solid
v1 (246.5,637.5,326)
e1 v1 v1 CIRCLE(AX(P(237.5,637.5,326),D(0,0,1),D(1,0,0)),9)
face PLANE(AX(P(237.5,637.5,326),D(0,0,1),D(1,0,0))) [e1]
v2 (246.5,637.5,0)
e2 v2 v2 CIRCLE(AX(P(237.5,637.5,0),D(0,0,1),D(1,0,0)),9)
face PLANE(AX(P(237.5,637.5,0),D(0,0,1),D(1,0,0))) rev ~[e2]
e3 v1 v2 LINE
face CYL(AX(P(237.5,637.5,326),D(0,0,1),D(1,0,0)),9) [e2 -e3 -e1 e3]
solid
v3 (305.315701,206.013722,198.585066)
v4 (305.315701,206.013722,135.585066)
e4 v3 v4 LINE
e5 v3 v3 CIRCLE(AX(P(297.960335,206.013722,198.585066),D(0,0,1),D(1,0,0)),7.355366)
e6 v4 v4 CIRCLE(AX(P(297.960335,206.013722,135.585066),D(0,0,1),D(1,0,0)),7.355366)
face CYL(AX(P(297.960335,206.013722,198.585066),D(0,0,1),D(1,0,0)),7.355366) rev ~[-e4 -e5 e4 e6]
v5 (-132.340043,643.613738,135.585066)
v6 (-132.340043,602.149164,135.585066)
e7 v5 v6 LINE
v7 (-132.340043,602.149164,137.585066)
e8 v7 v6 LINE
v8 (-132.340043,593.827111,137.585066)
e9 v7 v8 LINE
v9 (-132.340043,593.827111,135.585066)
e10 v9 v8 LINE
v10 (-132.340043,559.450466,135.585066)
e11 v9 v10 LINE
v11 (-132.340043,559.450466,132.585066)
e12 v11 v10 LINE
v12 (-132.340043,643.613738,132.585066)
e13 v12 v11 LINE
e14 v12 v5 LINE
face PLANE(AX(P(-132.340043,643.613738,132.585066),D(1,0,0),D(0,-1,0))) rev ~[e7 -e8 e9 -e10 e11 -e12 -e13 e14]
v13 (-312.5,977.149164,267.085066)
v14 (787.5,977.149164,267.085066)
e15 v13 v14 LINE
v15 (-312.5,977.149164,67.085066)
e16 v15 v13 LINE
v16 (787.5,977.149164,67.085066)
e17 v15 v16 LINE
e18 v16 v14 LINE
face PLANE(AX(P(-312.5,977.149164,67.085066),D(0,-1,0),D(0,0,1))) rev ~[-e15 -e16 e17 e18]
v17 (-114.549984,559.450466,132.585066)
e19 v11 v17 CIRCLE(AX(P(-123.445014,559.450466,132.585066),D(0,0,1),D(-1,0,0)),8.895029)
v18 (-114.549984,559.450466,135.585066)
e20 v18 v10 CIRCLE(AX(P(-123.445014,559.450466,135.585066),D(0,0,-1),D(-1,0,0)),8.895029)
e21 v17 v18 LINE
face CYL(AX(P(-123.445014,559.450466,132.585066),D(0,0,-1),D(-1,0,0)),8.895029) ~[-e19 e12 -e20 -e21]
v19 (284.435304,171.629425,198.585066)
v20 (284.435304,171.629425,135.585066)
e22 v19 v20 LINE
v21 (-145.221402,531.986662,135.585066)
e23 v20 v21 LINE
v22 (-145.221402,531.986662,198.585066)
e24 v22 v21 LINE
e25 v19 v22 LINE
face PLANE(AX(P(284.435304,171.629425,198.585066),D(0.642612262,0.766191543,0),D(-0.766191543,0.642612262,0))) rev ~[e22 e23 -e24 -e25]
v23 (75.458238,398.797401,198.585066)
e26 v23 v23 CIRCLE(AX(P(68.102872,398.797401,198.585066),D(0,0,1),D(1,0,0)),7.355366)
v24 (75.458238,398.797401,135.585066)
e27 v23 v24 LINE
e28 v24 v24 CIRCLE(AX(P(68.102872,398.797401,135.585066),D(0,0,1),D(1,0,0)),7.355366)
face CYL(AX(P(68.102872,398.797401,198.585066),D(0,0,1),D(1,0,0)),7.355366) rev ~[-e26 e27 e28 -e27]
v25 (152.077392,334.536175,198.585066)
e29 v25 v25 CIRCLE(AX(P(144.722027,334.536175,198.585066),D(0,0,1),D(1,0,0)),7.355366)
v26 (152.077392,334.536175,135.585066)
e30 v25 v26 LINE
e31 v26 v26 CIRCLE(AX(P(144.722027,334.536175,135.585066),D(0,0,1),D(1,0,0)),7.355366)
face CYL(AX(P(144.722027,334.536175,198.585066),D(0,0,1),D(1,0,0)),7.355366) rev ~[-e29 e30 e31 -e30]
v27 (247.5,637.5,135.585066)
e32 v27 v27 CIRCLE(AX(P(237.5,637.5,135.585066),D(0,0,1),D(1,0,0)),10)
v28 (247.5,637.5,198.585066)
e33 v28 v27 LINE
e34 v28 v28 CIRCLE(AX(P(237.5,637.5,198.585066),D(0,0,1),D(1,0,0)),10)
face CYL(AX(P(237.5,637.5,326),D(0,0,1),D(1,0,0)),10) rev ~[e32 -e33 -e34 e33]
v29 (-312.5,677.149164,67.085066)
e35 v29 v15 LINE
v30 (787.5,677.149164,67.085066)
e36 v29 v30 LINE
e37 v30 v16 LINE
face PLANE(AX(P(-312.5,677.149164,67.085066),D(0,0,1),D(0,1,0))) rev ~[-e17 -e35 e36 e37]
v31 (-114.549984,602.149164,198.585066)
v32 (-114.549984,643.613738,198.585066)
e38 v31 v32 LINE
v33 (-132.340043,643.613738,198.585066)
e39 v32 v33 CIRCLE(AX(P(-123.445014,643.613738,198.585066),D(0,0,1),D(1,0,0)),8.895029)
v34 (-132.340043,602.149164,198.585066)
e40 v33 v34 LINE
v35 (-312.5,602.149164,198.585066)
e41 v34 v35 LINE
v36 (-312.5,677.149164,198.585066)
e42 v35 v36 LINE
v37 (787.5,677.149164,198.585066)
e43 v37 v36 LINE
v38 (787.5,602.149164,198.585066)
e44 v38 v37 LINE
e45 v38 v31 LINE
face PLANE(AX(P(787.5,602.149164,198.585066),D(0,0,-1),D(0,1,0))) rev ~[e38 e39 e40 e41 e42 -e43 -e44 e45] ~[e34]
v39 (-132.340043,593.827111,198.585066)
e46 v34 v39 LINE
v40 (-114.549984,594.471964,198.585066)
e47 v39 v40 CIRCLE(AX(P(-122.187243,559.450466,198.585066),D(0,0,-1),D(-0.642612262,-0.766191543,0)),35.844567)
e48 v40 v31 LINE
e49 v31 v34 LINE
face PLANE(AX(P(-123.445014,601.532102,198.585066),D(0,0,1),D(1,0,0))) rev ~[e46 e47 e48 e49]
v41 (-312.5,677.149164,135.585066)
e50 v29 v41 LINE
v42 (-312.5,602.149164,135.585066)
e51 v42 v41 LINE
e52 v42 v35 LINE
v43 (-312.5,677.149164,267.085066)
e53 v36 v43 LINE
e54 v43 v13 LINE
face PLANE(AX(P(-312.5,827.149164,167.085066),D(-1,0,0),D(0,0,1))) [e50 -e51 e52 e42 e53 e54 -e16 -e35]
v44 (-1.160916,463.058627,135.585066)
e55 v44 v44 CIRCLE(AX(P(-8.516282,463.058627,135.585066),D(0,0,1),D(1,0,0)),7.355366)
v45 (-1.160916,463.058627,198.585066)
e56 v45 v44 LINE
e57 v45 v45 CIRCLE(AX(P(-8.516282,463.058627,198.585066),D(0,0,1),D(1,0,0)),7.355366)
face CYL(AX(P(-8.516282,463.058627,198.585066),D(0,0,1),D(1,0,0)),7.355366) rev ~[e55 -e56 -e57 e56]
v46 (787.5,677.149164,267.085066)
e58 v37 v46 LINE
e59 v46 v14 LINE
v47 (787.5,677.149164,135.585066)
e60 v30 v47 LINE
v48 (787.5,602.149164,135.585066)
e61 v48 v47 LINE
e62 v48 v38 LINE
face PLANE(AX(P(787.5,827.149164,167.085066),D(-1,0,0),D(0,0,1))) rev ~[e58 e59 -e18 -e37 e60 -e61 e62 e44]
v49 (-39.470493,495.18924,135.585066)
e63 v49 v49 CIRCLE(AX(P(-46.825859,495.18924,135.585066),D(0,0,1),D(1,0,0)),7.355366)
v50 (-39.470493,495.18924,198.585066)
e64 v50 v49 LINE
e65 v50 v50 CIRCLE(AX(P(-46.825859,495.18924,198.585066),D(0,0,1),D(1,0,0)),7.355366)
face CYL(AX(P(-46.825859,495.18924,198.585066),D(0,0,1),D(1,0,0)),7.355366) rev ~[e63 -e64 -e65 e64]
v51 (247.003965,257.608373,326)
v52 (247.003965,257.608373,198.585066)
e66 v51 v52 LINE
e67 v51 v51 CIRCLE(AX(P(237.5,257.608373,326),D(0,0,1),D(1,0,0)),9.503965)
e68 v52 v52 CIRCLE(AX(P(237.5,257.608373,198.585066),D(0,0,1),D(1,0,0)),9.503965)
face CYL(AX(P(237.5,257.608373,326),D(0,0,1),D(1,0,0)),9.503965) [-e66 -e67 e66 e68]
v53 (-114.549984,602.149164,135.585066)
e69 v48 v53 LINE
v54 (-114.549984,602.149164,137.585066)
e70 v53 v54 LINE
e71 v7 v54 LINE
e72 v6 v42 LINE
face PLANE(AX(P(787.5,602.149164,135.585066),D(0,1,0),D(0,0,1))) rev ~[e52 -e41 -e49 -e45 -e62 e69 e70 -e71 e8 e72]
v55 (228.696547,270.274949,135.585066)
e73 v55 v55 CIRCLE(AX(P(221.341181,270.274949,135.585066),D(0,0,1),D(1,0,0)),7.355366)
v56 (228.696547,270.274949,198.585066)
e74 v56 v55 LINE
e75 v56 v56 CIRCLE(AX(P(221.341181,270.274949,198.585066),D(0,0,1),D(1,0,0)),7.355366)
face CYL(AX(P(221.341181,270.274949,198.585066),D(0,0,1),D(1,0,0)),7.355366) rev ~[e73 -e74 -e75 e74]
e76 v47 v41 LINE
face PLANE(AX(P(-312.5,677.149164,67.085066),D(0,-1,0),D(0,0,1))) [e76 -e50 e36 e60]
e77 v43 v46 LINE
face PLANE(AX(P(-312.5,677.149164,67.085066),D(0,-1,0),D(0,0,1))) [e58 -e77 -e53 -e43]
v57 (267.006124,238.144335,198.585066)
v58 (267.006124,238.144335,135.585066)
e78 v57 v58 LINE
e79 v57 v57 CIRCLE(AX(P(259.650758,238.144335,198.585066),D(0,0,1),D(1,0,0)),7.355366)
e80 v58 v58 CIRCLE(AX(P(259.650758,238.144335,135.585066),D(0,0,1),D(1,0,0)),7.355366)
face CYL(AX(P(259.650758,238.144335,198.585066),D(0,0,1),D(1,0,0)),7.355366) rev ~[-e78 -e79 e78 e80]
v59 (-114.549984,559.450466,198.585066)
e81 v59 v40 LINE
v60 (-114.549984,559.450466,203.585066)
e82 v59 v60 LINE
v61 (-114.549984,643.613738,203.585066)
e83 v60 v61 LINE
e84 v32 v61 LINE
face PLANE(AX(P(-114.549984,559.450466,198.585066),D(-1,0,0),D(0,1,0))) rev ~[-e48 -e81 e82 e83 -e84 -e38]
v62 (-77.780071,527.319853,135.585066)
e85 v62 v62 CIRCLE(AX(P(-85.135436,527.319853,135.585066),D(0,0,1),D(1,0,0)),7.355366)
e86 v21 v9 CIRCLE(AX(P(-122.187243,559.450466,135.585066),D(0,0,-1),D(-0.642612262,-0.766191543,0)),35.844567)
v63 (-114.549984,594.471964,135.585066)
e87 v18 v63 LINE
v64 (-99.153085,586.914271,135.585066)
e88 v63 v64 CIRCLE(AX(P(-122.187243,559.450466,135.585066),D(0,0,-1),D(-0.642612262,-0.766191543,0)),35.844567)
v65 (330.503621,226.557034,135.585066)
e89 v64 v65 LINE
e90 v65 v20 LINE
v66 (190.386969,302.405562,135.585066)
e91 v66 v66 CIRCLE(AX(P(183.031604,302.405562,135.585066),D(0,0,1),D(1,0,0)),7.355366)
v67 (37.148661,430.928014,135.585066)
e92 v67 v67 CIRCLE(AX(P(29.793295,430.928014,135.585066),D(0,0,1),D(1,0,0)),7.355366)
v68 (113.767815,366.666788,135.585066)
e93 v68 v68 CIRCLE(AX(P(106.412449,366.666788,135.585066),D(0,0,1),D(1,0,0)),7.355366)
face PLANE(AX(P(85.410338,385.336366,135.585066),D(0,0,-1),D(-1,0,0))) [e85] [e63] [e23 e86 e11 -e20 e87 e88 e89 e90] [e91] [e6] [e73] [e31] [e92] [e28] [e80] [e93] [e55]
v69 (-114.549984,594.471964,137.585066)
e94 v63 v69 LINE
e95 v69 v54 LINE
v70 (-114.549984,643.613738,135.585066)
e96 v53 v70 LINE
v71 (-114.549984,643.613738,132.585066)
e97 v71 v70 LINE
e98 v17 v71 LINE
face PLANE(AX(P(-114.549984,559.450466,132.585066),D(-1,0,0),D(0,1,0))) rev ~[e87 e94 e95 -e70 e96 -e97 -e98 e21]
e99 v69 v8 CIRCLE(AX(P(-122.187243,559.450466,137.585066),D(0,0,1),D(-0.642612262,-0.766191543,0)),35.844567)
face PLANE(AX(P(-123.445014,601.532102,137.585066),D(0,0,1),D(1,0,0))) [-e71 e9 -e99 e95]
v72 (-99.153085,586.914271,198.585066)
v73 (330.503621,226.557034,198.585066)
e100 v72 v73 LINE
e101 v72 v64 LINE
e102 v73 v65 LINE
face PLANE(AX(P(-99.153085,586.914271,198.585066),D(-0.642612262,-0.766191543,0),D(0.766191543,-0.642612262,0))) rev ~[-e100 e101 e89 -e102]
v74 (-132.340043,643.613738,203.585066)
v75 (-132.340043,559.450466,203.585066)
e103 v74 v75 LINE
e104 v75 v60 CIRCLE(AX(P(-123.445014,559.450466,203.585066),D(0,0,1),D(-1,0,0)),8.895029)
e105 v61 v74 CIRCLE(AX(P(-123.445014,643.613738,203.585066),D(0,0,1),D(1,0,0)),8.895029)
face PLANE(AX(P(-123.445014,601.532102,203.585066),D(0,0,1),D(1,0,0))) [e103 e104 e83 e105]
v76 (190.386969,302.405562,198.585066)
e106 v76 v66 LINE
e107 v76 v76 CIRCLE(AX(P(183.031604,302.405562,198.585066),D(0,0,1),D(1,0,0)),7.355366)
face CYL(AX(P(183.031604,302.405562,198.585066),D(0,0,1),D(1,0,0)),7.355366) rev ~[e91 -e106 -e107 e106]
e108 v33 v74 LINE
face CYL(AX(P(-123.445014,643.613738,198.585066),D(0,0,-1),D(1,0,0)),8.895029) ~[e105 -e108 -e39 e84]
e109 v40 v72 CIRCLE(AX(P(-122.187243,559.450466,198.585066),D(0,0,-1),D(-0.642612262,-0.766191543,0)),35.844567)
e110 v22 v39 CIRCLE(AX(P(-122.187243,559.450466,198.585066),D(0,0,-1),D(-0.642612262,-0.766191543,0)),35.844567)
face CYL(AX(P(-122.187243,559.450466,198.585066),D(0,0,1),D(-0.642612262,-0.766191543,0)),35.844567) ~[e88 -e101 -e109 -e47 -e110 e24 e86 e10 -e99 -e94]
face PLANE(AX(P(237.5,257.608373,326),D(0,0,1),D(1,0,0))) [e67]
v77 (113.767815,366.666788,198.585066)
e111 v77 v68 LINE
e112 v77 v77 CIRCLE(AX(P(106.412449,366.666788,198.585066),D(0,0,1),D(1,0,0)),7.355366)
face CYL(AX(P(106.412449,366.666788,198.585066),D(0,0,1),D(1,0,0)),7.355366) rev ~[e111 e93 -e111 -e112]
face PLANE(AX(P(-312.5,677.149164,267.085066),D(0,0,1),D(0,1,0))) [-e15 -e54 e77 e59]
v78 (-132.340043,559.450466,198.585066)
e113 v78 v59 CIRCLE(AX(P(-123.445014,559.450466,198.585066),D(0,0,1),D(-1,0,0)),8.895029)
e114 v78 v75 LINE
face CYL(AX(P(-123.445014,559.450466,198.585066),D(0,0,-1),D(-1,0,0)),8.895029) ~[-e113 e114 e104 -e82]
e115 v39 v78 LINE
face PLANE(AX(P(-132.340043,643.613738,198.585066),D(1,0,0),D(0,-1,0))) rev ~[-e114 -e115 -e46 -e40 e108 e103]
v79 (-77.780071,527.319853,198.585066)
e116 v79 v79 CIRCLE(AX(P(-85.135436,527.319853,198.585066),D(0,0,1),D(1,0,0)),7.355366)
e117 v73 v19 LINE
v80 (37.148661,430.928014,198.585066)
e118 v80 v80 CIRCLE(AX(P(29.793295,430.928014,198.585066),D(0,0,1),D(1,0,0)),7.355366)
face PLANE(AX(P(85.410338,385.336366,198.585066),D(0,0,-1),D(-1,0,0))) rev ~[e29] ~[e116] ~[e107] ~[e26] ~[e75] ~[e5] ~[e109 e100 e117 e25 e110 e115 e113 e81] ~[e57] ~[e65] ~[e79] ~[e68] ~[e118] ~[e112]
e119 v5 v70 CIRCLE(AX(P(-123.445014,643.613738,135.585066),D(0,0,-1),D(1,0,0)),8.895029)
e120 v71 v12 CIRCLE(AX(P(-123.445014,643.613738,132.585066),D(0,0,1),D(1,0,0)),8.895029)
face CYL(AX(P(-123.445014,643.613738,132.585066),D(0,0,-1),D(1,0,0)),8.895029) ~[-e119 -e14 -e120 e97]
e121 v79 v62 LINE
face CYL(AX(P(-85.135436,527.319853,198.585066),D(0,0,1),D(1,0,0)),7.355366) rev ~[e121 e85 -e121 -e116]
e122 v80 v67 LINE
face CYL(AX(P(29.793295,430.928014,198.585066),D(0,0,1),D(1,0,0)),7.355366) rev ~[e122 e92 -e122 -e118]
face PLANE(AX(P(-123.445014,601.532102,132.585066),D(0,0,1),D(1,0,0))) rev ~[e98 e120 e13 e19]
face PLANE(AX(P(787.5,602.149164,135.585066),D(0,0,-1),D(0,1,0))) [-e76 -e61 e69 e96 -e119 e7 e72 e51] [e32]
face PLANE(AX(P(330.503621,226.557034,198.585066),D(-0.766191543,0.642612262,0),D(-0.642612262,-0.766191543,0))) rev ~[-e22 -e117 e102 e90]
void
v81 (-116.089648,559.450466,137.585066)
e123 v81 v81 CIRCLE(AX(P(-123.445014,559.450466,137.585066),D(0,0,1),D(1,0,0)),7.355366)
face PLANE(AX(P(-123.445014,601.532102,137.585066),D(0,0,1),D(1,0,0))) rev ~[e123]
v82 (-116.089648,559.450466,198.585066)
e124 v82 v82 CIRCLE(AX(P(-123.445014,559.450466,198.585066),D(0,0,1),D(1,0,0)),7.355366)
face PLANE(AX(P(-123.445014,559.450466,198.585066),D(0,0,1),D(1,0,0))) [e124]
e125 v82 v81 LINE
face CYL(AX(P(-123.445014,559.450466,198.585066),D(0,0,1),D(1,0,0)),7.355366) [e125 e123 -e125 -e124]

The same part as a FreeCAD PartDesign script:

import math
import FreeCAD as App
import Part
import Sketcher
from FreeCAD import Vector
Q = App.Units.Quantity

doc = App.newDocument("Part")
body = doc.addObject("PartDesign::Body", "Body")

sketch1 = body.newObject("Sketcher::SketchObject", "Sketch")
sketch1.AttachmentSupport = (doc.getObject("YZ_Plane"), [""])
sketch1.MapMode = "FlatFace"
sketch1.AttachmentOffset = App.Placement(Vector(0, 0, 237.5), App.Rotation())
sketch1.addGeometry([
    Part.LineSegment(Vector(677, 136, 0), Vector(602, 136, 0)),
    Part.LineSegment(Vector(602, 136, 0), Vector(602, 199, 0)),
    Part.LineSegment(Vector(602, 199, 0), Vector(677, 199, 0)),
    Part.LineSegment(Vector(677, 199, 0), Vector(677, 136, 0)),
], False)
sketch1.addConstraint([
    Sketcher.Constraint("Coincident", 0, 2, 1, 1),
    Sketcher.Constraint("Coincident", 1, 2, 2, 1),
    Sketcher.Constraint("Coincident", 2, 2, 3, 1),
    Sketcher.Constraint("Coincident", 3, 2, 0, 1),
    Sketcher.Constraint("Horizontal", 0),
    Sketcher.Constraint("Vertical", 1),
    Sketcher.Constraint("Horizontal", 2),
    Sketcher.Constraint("Vertical", 3),
    Sketcher.Constraint("DistanceX", 0, 2, 0, 1, Q("75 mm")),
    Sketcher.Constraint("DistanceY", 1, 1, 1, 2, Q("63 mm")),
    Sketcher.Constraint("DistanceX", -1, 1, 0, 2, Q("602.149164 mm")),
    Sketcher.Constraint("DistanceY", -1, 1, 0, 2, Q("135.585066 mm")),
])
pad1 = body.newObject("PartDesign::Pad", "Pad")
pad1.Profile = sketch1
pad1.Type = "TwoLengths"
pad1.Length = 550
pad1.Length2 = 550
pad1.Reversed = True

sketch2 = body.newObject("Sketcher::SketchObject", "Sketch001")
sketch2.AttachmentSupport = (doc.getObject("XY_Plane"), [""])
sketch2.MapMode = "FlatFace"
sketch2.AttachmentOffset = App.Placement(Vector(0, 0, 326), App.Rotation())
sketch2.addGeometry(Part.Circle(Vector(238, 638, 0), Vector(0, 0, 1), 10), False)
sketch2.addConstraint([
    Sketcher.Constraint("Diameter", 0, Q("20 mm")),
    Sketcher.Constraint("DistanceX", -1, 1, 0, 3, Q("237.5 mm")),
    Sketcher.Constraint("DistanceY", -1, 1, 0, 3, Q("637.5 mm")),
])
pocket1 = body.newObject("PartDesign::Pocket", "Pocket")
pocket1.Profile = sketch2
pocket1.Type = "ThroughAll"
body2 = doc.addObject("PartDesign::Body", "Body001")

sketch3 = body2.newObject("Sketcher::SketchObject", "Sketch002")
sketch3.AttachmentSupport = (doc.getObject("XY_Plane001"), [""])
sketch3.MapMode = "FlatFace"
sketch3.AttachmentOffset = App.Placement(Vector(0, 0, 198.585066), App.Rotation())
sketch3.addGeometry([
    Part.LineSegment(Vector(331, 227, 0), Vector(-99, 587, 0)),
    Part.ArcOfCircle(Part.Circle(Vector(-122, 559, 0), Vector(0, 0, 1), 36), math.radians(50), math.radians(230)),
    Part.LineSegment(Vector(-145, 532, 0), Vector(284, 172, 0)),
    Part.LineSegment(Vector(284, 172, 0), Vector(331, 227, 0)),
], False)
sketch3.addConstraint([
    Sketcher.Constraint("Tangent", 0, 2, 1, 1),
    Sketcher.Constraint("Tangent", 1, 2, 2, 1),
    Sketcher.Constraint("Coincident", 2, 2, 3, 1),
    Sketcher.Constraint("Coincident", 3, 2, 0, 1),
    Sketcher.Constraint("Parallel", 0, 2),
    Sketcher.Constraint("Perpendicular", 2, 3),
    Sketcher.Constraint("Radius", 1, Q("35.844567 mm")),
    Sketcher.Constraint("DistanceX", 1, 2, -1, 1, Q("145.221402 mm")),
    Sketcher.Constraint("DistanceY", -1, 1, 0, 2, Q("586.914271 mm")),
    Sketcher.Constraint("DistanceX", -1, 1, 3, 2, Q("330.503621 mm")),
    Sketcher.Constraint("DistanceX", 1, 3, 0, 2, Q("23.034158 mm")),
])
pad2 = body2.newObject("PartDesign::Pad", "Pad001")
pad2.Profile = sketch3
pad2.Length = 63
pad2.Reversed = True
body.AllowCompound = True
doc.recompute()

boolean = body.newObject("PartDesign::Boolean", "Boolean")
boolean.Type = "Fuse"
boolean.addObjects([body2])

sketch4 = body.newObject("Sketcher::SketchObject", "Sketch003")
sketch4.AttachmentSupport = (doc.getObject("XY_Plane"), [""])
sketch4.MapMode = "FlatFace"
sketch4.AttachmentOffset = App.Placement(Vector(0, 0, 198.585066), App.Rotation())
sketch4.addGeometry([
    Part.LineSegment(Vector(-115, 559, 0), Vector(-115, 644, 0)),
    Part.ArcOfCircle(Part.Circle(Vector(-123, 644, 0), Vector(0, 0, 1), 9), math.radians(0), math.radians(180)),
    Part.LineSegment(Vector(-132, 644, 0), Vector(-132, 559, 0)),
    Part.ArcOfCircle(Part.Circle(Vector(-123, 559, 0), Vector(0, 0, 1), 9), math.radians(180), math.radians(360)),
], False)
sketch4.addConstraint([
    Sketcher.Constraint("Tangent", 0, 2, 1, 1),
    Sketcher.Constraint("Tangent", 1, 2, 2, 1),
    Sketcher.Constraint("Tangent", 2, 2, 3, 1),
    Sketcher.Constraint("Tangent", 3, 2, 0, 1),
    Sketcher.Constraint("Vertical", 0),
    Sketcher.Constraint("Vertical", 2),
    Sketcher.Constraint("Radius", 1, Q("8.895029 mm")),
    Sketcher.Constraint("DistanceY", 0, 1, 0, 2, Q("84.163271 mm")),
    Sketcher.Constraint("DistanceX", 1, 3, -1, 1, Q("123.445014 mm")),
    Sketcher.Constraint("DistanceY", -1, 1, 1, 3, Q("643.613738 mm")),
])
pad3 = body.newObject("PartDesign::Pad", "Pad002")
pad3.Profile = sketch4
pad3.Length = 5

sketch5 = body.newObject("Sketcher::SketchObject", "Sketch004")
sketch5.AttachmentSupport = (doc.getObject("XY_Plane"), [""])
sketch5.MapMode = "FlatFace"
sketch5.AttachmentOffset = App.Placement(Vector(0, 0, 198.585066), App.Rotation())
sketch5.addGeometry(Part.Circle(Vector(-123, 559, 0), Vector(0, 0, 1), 7), False)
sketch5.addConstraint([
    Sketcher.Constraint("Diameter", 0, Q("14.710731 mm")),
    Sketcher.Constraint("DistanceX", 0, 3, -1, 1, Q("123.445014 mm")),
    Sketcher.Constraint("DistanceY", -1, 1, 0, 3, Q("559.450466 mm")),
])
pocket2 = body.newObject("PartDesign::Pocket", "Pocket001")
pocket2.Profile = sketch5
pocket2.Length = 100
doc.recompute()

datumline = body.newObject("PartDesign::Line", "DatumLine")
datumline.Placement = App.Placement(Vector(0, 0, 0), App.Rotation(Vector(0, 0, 1), Vector(0.766191543, -0.642612262, 0)))
linearpattern = body.newObject("PartDesign::LinearPattern", "LinearPattern")
linearpattern.Originals = [pocket2]
linearpattern.Direction = (datumline, [""])
linearpattern.Mode = "offset"
linearpattern.Offset = 50
linearpattern.Occurrences = 12
body.Tip = linearpattern

sketch6 = body.newObject("Sketcher::SketchObject", "Sketch005")
sketch6.AttachmentSupport = (doc.getObject("XY_Plane"), [""])
sketch6.MapMode = "FlatFace"
sketch6.AttachmentOffset = App.Placement(Vector(0, 0, 326), App.Rotation())
sketch6.addGeometry(Part.Circle(Vector(238, 258, 0), Vector(0, 0, 1), 10), False)
sketch6.addConstraint([
    Sketcher.Constraint("DistanceX", -1, 1, 0, 3, Q("237.5 mm")),
    Sketcher.Constraint("Diameter", 0, Q("19.00793 mm")),
    Sketcher.Constraint("DistanceY", -1, 1, 0, 3, Q("257.608373 mm")),
])
pad4 = body.newObject("PartDesign::Pad", "Pad003")
pad4.Profile = sketch6
pad4.Type = "UpToFirst"
pad4.Reversed = True
doc.recompute()

linearpattern2 = body.newObject("PartDesign::LinearPattern", "LinearPattern001")
linearpattern2.Originals = [pad3]
linearpattern2.Direction = (doc.getObject("Z_Axis"), [""])
linearpattern2.Mode = "offset"
linearpattern2.Offset = 66
linearpattern2.Occurrences = 2
linearpattern2.Reversed = True
body.Tip = linearpattern2

sketch7 = body.newObject("Sketcher::SketchObject", "Sketch006")
sketch7.AttachmentSupport = (doc.getObject("YZ_Plane"), [""])
sketch7.MapMode = "FlatFace"
sketch7.AttachmentOffset = App.Placement(Vector(0, 0, -312.5), App.Rotation())
sketch7.addGeometry([
    Part.LineSegment(Vector(977, 67, 0), Vector(677, 67, 0)),
    Part.LineSegment(Vector(677, 67, 0), Vector(677, 267, 0)),
    Part.LineSegment(Vector(677, 267, 0), Vector(977, 267, 0)),
    Part.LineSegment(Vector(977, 267, 0), Vector(977, 67, 0)),
], False)
sketch7.addConstraint([
    Sketcher.Constraint("Coincident", 0, 2, 1, 1),
    Sketcher.Constraint("Coincident", 1, 2, 2, 1),
    Sketcher.Constraint("Coincident", 2, 2, 3, 1),
    Sketcher.Constraint("Coincident", 3, 2, 0, 1),
    Sketcher.Constraint("Horizontal", 0),
    Sketcher.Constraint("Vertical", 1),
    Sketcher.Constraint("Horizontal", 2),
    Sketcher.Constraint("Vertical", 3),
    Sketcher.Constraint("DistanceX", 0, 2, 0, 1, Q("300 mm")),
    Sketcher.Constraint("DistanceY", 1, 1, 1, 2, Q("200 mm")),
    Sketcher.Constraint("DistanceX", -1, 1, 0, 2, Q("677.149164 mm")),
    Sketcher.Constraint("DistanceY", -1, 1, 0, 2, Q("67.085066 mm")),
])
pad5 = body.newObject("PartDesign::Pad", "Pad004")
pad5.Profile = sketch7
pad5.Length = 1100
body3 = doc.addObject("PartDesign::Body", "Body002")

sketch8 = body3.newObject("Sketcher::SketchObject", "Sketch007")
sketch8.AttachmentSupport = (doc.getObject("XY_Plane002"), [""])
sketch8.MapMode = "FlatFace"
sketch8.AttachmentOffset = App.Placement(Vector(0, 0, 326), App.Rotation())
sketch8.addGeometry(Part.Circle(Vector(238, 638, 0), Vector(0, 0, 1), 9), False)
sketch8.addConstraint([
    Sketcher.Constraint("Diameter", 0, Q("18 mm")),
    Sketcher.Constraint("DistanceX", -1, 1, 0, 3, Q("237.5 mm")),
    Sketcher.Constraint("DistanceY", -1, 1, 0, 3, Q("637.5 mm")),
])
pad6 = body3.newObject("PartDesign::Pad", "Pad005")
pad6.Profile = sketch8
pad6.Length = 326
pad6.Reversed = True

doc.recompute()
